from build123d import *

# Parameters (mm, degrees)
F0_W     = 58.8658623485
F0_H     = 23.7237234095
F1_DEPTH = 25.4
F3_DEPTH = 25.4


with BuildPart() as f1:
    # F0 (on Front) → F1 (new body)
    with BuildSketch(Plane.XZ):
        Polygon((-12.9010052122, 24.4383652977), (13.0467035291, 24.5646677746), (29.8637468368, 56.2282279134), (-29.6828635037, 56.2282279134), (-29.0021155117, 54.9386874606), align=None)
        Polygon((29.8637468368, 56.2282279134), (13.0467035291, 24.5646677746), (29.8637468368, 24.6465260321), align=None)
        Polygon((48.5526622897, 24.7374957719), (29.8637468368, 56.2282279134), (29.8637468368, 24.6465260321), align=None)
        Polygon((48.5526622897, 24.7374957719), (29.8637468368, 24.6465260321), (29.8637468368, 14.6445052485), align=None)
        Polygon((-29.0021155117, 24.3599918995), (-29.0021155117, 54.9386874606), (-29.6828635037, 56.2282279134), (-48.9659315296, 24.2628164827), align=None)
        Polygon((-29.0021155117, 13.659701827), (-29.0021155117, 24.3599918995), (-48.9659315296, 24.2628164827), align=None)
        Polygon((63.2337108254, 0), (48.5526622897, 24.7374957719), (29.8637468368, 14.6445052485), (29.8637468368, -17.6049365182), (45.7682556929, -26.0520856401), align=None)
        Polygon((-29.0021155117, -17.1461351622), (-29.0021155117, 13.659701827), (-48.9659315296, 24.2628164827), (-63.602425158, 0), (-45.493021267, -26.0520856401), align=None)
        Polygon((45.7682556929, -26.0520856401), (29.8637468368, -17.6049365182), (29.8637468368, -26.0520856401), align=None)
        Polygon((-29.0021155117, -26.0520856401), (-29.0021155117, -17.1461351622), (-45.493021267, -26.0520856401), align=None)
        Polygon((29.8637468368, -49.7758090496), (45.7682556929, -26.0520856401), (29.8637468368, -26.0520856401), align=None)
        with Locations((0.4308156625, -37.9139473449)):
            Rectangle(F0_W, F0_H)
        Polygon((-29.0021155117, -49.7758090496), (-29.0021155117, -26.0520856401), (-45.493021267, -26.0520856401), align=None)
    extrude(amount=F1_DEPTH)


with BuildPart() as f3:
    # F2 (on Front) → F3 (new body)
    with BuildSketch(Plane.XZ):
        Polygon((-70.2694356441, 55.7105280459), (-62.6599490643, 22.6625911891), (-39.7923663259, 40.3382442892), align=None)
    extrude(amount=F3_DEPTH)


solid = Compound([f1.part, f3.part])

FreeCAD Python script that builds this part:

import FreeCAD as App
import Part
import Sketcher
Q = App.Units.Quantity

doc = App.newDocument("Part")
body = doc.addObject("PartDesign::Body", "Body")

# Sketch on XZ plane
sketch1 = body.newObject("Sketcher::SketchObject", "Sketch")
sketch1.AttachmentSupport = (doc.getObject("XZ_Plane"), [""])
sketch1.MapMode = "FlatFace"
sketch1.addGeometry(Part.LineSegment(App.Vector(-64, 0, 0), App.Vector(-45, -26, 0)), False)
sketch1.addGeometry(Part.LineSegment(App.Vector(-45, -26, 0), App.Vector(-29, -50, 0)), False)
sketch1.addGeometry(Part.LineSegment(App.Vector(-29, -50, 0), App.Vector(30, -50, 0)), False)
sketch1.addGeometry(Part.LineSegment(App.Vector(30, -50, 0), App.Vector(46, -26, 0)), False)
sketch1.addGeometry(Part.LineSegment(App.Vector(46, -26, 0), App.Vector(63, 0, 0)), False)
sketch1.addGeometry(Part.LineSegment(App.Vector(63, 0, 0), App.Vector(49, 25, 0)), False)
sketch1.addGeometry(Part.LineSegment(App.Vector(49, 25, 0), App.Vector(30, 56, 0)), False)
sketch1.addGeometry(Part.LineSegment(App.Vector(30, 56, 0), App.Vector(-30, 56, 0)), False)
sketch1.addGeometry(Part.LineSegment(App.Vector(-30, 56, 0), App.Vector(-49, 24, 0)), False)
sketch1.addGeometry(Part.LineSegment(App.Vector(-49, 24, 0), App.Vector(-64, 0, 0)), False)
sketch1.addGeometry(Part.LineSegment(App.Vector(30, -26, 0), App.Vector(-29, -26, 0)), False)
sketch1.addGeometry(Part.LineSegment(App.Vector(-29, -26, 0), App.Vector(-29, 55, 0)), False)
sketch1.addGeometry(Part.LineSegment(App.Vector(-29, 55, 0), App.Vector(-13, 24, 0)), False)
sketch1.addGeometry(Part.LineSegment(App.Vector(-13, 24, 0), App.Vector(30, 25, 0)), False)
sketch1.addGeometry(Part.LineSegment(App.Vector(30, 25, 0), App.Vector(30, -26, 0)), False)
sketch1.addConstraint(Sketcher.Constraint("Coincident", 0, 2, 1, 1))
sketch1.addConstraint(Sketcher.Constraint("Coincident", 1, 2, 2, 1))
sketch1.addConstraint(Sketcher.Constraint("Coincident", 2, 2, 3, 1))
sketch1.addConstraint(Sketcher.Constraint("Coincident", 3, 2, 4, 1))
sketch1.addConstraint(Sketcher.Constraint("Coincident", 4, 2, 5, 1))
sketch1.addConstraint(Sketcher.Constraint("Coincident", 5, 2, 6, 1))
sketch1.addConstraint(Sketcher.Constraint("Coincident", 6, 2, 7, 1))
sketch1.addConstraint(Sketcher.Constraint("Coincident", 7, 2, 8, 1))
sketch1.addConstraint(Sketcher.Constraint("Coincident", 8, 2, 9, 1))
sketch1.addConstraint(Sketcher.Constraint("Coincident", 9, 2, 0, 1))
sketch1.addConstraint(Sketcher.Constraint("Coincident", 10, 2, 11, 1))
sketch1.addConstraint(Sketcher.Constraint("Coincident", 11, 2, 12, 1))
sketch1.addConstraint(Sketcher.Constraint("Coincident", 12, 2, 13, 1))
sketch1.addConstraint(Sketcher.Constraint("Coincident", 13, 2, 14, 1))
sketch1.addConstraint(Sketcher.Constraint("Coincident", 14, 2, 10, 1))
sketch1.addConstraint(Sketcher.Constraint("Horizontal", 2))
sketch1.addConstraint(Sketcher.Constraint("Horizontal", 7))
sketch1.addConstraint(Sketcher.Constraint("Horizontal", 10))
sketch1.addConstraint(Sketcher.Constraint("Vertical", 11))
sketch1.addConstraint(Sketcher.Constraint("Vertical", 14))
sketch1.addConstraint(Sketcher.Constraint("PointOnObject", 4, 2, -1))
sketch1.addConstraint(Sketcher.Constraint("PointOnObject", 9, 2, -1))
sketch1.addConstraint(Sketcher.Constraint("Parallel", 0, 1))
sketch1.addConstraint(Sketcher.Constraint("Parallel", 3, 4))
sketch1.addConstraint(Sketcher.Constraint("Parallel", 5, 6))
sketch1.addConstraint(Sketcher.Constraint("Parallel", 8, 9))
sketch1.addConstraint(Sketcher.Constraint("Horizontal", 0, 2, 3, 2))
sketch1.addConstraint(Sketcher.Constraint("Horizontal", 3, 2, 10, 2))
sketch1.addConstraint(Sketcher.Constraint("Vertical", 2, 2, 6, 2))
sketch1.addConstraint(Sketcher.Constraint("Vertical", 1, 2, 10, 2))
sketch1.addConstraint(Sketcher.Constraint("Vertical", 6, 2, 13, 2))
sketch1.addConstraint(Sketcher.Constraint("DistanceX", -1, 1, 3, 2, Q("1.8018998 in")))
sketch1.addConstraint(Sketcher.Constraint("DistanceY", 12, 2, 11, 2, Q("1.2008001 in")))
sketch1.addConstraint(Sketcher.Constraint("Distance", 1, 28.8923))
sketch1.addConstraint(Sketcher.Constraint("DistanceX", 7, 2, 7, 1, 59.54661))
sketch1.addConstraint(Sketcher.Constraint("DistanceY", 14, 2, 14, 1, 50.698612))
sketch1.addConstraint(Sketcher.Constraint("DistanceY", 13, 2, 6, 2, 31.581702))
sketch1.addConstraint(Sketcher.Constraint("Distance", 3, 28.561661))
sketch1.addConstraint(Sketcher.Constraint("Distance", 4, 31.364842))
sketch1.addConstraint(Sketcher.Constraint("Distance", 6, 36.618872))
sketch1.addConstraint(Sketcher.Constraint("Distance", 13, 42.765259))
sketch1.addConstraint(Sketcher.Constraint("DistanceX", 2, 1, 2, 2, 58.865862))
sketch1.addConstraint(Sketcher.Constraint("DistanceY", 11, 1, 11, 2, 80.990773))
sketch1.addConstraint(Sketcher.Constraint("DistanceX", 0, 2, -1, 1, 45.493021))
sketch1.addConstraint(Sketcher.Constraint("DistanceX", 8, 2, -1, 1, 48.965932))
pad1 = body.newObject("PartDesign::Pad", "Pad")
pad1.Profile = sketch1
pad1.Length = Q("1 in")
body2 = doc.addObject("PartDesign::Body", "Body001")

# Sketch on XZ plane
sketch2 = body2.newObject("Sketcher::SketchObject", "Sketch001")
sketch2.AttachmentSupport = (doc.getObject("XZ_Plane001"), [""])
sketch2.MapMode = "FlatFace"
sketch2.addGeometry(Part.LineSegment(App.Vector(-70, 56, 0), App.Vector(-63, 23, 0)), False)
sketch2.addGeometry(Part.LineSegment(App.Vector(-63, 23, 0), App.Vector(-40, 40, 0)), False)
sketch2.addGeometry(Part.LineSegment(App.Vector(-40, 40, 0), App.Vector(-70, 56, 0)), False)
sketch2.addConstraint(Sketcher.Constraint("Coincident", 0, 2, 1, 1))
sketch2.addConstraint(Sketcher.Constraint("Coincident", 1, 2, 2, 1))
sketch2.addConstraint(Sketcher.Constraint("Coincident", 2, 2, 0, 1))
sketch2.addConstraint(Sketcher.Constraint("DistanceY", 0, 2, 2, 2, Q("1.3010999 in")))
sketch2.addConstraint(Sketcher.Constraint("Distance", 0, 33.912688))
sketch2.addConstraint(Sketcher.Constraint("Distance", 1, 28.902509))
sketch2.addConstraint(Sketcher.Constraint("DistanceX", 0, 2, -1, 1, 62.659949))
sketch2.addConstraint(Sketcher.Constraint("DistanceY", -1, 1, 0, 2, 22.662591))
sketch2.addConstraint(Sketcher.Constraint("DistanceX", 2, 2, 1, 2, 30.477069))
pad2 = body2.newObject("PartDesign::Pad", "Pad001")
pad2.Profile = sketch2
pad2.Length = Q("1 in")

doc.recompute()
